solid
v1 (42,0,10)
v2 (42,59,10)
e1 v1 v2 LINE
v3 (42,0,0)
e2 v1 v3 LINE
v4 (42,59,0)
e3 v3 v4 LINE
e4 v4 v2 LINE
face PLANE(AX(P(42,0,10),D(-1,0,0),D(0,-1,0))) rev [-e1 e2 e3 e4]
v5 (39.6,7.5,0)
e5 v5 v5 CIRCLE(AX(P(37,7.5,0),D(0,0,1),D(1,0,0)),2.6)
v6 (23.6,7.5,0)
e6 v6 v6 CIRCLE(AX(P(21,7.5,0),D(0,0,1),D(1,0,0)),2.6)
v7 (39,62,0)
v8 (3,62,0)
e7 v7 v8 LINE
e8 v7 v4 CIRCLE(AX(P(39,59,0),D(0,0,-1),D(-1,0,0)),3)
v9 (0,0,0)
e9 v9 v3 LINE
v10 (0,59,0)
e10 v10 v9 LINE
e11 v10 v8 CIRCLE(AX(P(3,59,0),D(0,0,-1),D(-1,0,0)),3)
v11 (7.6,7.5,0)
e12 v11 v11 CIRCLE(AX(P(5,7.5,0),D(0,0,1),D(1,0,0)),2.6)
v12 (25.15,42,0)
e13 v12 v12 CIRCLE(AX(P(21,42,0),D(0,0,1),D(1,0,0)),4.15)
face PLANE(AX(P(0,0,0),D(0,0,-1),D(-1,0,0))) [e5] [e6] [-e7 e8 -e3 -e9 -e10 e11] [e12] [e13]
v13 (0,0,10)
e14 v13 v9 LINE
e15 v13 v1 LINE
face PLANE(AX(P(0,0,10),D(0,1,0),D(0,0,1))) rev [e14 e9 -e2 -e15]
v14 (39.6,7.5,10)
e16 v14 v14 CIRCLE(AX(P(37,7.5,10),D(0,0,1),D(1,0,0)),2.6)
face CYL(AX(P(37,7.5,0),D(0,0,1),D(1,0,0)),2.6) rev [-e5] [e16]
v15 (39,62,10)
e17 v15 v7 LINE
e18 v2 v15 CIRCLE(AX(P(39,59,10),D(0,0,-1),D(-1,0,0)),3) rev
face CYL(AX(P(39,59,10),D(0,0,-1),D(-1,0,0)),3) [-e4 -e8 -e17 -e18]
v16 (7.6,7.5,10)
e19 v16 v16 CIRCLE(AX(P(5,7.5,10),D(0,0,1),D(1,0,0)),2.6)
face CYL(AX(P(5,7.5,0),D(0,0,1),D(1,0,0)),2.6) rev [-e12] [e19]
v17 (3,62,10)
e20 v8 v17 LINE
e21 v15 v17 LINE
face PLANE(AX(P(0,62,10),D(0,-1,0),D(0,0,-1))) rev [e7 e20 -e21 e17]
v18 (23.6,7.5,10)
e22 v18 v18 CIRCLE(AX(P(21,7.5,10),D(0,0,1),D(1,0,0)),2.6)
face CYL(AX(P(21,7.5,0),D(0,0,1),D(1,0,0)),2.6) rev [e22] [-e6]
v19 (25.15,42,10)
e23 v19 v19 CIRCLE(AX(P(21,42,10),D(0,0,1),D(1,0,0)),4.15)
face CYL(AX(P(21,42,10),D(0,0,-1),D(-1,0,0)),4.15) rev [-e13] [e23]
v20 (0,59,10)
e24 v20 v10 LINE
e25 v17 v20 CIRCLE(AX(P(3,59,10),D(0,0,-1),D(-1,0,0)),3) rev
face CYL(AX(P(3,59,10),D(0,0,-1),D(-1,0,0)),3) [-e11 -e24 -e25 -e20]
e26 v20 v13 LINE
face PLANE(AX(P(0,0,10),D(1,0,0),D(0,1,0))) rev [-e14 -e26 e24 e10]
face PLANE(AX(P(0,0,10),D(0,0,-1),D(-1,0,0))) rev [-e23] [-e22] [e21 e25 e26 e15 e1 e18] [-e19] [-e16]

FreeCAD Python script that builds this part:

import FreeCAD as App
import Part
import Sketcher
Q = App.Units.Quantity


def edges_at(feature, points):
    """Names of the edges that pass closest to the given points."""
    edges = feature.Shape.Edges
    near = lambda p: min(range(len(edges)), key=lambda i: edges[i].distToShape(Part.Vertex(*p))[0])
    return sorted({f"Edge{near(p) + 1}" for p in points})

doc = App.newDocument("Part")
params = doc.addObject("Spreadsheet::Sheet", "Params")
for row, (alias, value) in enumerate([
    ("sketch1_diameter", "8.3 mm"),
    ("sketch1_width", "42 mm"),
    ("sketch1_height", "62 mm"),
    ("pad1_length", "10 mm"),
    ("fillet_radius", "3 mm"),
    ("sketch2_diameter", "5.2 mm"),
], start=1):
    params.set(f"A{row}", alias)
    params.set(f"B{row}", "=" + value)
    params.setAlias(f"B{row}", alias)

body = doc.addObject("PartDesign::Body", "Body")

# Sketch on XY plane
sketch1 = body.newObject("Sketcher::SketchObject", "Sketch")
sketch1.AttachmentSupport = (doc.getObject("XY_Plane"), [""])
sketch1.MapMode = "FlatFace"
sketch1.addGeometry(Part.LineSegment(App.Vector(0, 62, 0), App.Vector(0, 0, 0)), False)
sketch1.addGeometry(Part.LineSegment(App.Vector(0, 0, 0), App.Vector(42, 0, 0)), False)
sketch1.addGeometry(Part.LineSegment(App.Vector(42, 0, 0), App.Vector(42, 62, 0)), False)
sketch1.addGeometry(Part.LineSegment(App.Vector(42, 62, 0), App.Vector(0, 62, 0)), False)
sketch1.addGeometry(Part.Circle(App.Vector(21, 42, 0), App.Vector(0, 0, 1), 4.2), False)
sketch1.addConstraint(Sketcher.Constraint("Coincident", 0, 2, 1, 1))
sketch1.addConstraint(Sketcher.Constraint("Coincident", 1, 2, 2, 1))
sketch1.addConstraint(Sketcher.Constraint("Coincident", 2, 2, 3, 1))
sketch1.addConstraint(Sketcher.Constraint("Coincident", 3, 2, 0, 1))
sketch1.addConstraint(Sketcher.Constraint("Vertical", 0))
sketch1.addConstraint(Sketcher.Constraint("Horizontal", 1))
sketch1.addConstraint(Sketcher.Constraint("Vertical", 2))
sketch1.addConstraint(Sketcher.Constraint("Horizontal", 3))
sketch1.addConstraint(Sketcher.Constraint("Coincident", 0, 2, -1, 1))
sketch1.addConstraint(Sketcher.Constraint("Diameter", 4, Q("8.3 mm")))
sketch1.addConstraint(Sketcher.Constraint("DistanceX", 1, 1, 1, 2, Q("42 mm")))
sketch1.addConstraint(Sketcher.Constraint("DistanceY", 0, 2, 0, 1, Q("62 mm")))
sketch1.addConstraint(Sketcher.Constraint("DistanceX", -1, 1, 4, 3, Q("21 mm")))
sketch1.addConstraint(Sketcher.Constraint("DistanceY", -1, 1, 4, 3, Q("42 mm")))
sketch1.setExpression("Constraints[9]", "Params.sketch1_diameter")
sketch1.setExpression("Constraints[10]", "Params.sketch1_width")
sketch1.setExpression("Constraints[11]", "Params.sketch1_height")
pad1 = body.newObject("PartDesign::Pad", "Pad")
pad1.Profile = sketch1
pad1.setExpression("Length", "Params.pad1_length")
doc.recompute()

fillet = body.newObject("PartDesign::Fillet", "Fillet")
fillet.Base = (pad1, edges_at(pad1, [(0, 62, 5), (42, 62, 5)]))
fillet.setExpression("Radius", "Params.fillet_radius")

# Sketch on XY plane
sketch2 = body.newObject("Sketcher::SketchObject", "Sketch001")
sketch2.AttachmentSupport = (doc.getObject("XY_Plane"), [""])
sketch2.MapMode = "FlatFace"
sketch2.AttachmentOffset = App.Placement(App.Vector(0, 0, 10), App.Rotation())
sketch2.addGeometry(Part.Circle(App.Vector(5, 7.5, 0), App.Vector(0, 0, 1), 2.6), False)
sketch2.addGeometry(Part.Circle(App.Vector(21, 7.5, 0), App.Vector(0, 0, 1), 2.6), False)
sketch2.addGeometry(Part.Circle(App.Vector(37, 7.5, 0), App.Vector(0, 0, 1), 2.6), False)
sketch2.addConstraint(Sketcher.Constraint("Equal", 0, 1))
sketch2.addConstraint(Sketcher.Constraint("Equal", 1, 2))
sketch2.addConstraint(Sketcher.Constraint("Horizontal", 0, 3, 1, 3))
sketch2.addConstraint(Sketcher.Constraint("Horizontal", 1, 3, 2, 3))
sketch2.addConstraint(Sketcher.Constraint("Diameter", 0, Q("5.2 mm")))
sketch2.addConstraint(Sketcher.Constraint("DistanceX", -1, 1, 0, 3, Q("5 mm")))
sketch2.addConstraint(Sketcher.Constraint("DistanceX", -1, 1, 1, 3, Q("21 mm")))
sketch2.addConstraint(Sketcher.Constraint("DistanceX", -1, 1, 2, 3, Q("37 mm")))
sketch2.addConstraint(Sketcher.Constraint("DistanceY", -1, 1, 0, 3, Q("7.5 mm")))
sketch2.setExpression("Constraints[4]", "Params.sketch2_diameter")
pocket1 = body.newObject("PartDesign::Pocket", "Pocket")
pocket1.Profile = sketch2
pocket1.Type = "ThroughAll"

doc.recompute()
